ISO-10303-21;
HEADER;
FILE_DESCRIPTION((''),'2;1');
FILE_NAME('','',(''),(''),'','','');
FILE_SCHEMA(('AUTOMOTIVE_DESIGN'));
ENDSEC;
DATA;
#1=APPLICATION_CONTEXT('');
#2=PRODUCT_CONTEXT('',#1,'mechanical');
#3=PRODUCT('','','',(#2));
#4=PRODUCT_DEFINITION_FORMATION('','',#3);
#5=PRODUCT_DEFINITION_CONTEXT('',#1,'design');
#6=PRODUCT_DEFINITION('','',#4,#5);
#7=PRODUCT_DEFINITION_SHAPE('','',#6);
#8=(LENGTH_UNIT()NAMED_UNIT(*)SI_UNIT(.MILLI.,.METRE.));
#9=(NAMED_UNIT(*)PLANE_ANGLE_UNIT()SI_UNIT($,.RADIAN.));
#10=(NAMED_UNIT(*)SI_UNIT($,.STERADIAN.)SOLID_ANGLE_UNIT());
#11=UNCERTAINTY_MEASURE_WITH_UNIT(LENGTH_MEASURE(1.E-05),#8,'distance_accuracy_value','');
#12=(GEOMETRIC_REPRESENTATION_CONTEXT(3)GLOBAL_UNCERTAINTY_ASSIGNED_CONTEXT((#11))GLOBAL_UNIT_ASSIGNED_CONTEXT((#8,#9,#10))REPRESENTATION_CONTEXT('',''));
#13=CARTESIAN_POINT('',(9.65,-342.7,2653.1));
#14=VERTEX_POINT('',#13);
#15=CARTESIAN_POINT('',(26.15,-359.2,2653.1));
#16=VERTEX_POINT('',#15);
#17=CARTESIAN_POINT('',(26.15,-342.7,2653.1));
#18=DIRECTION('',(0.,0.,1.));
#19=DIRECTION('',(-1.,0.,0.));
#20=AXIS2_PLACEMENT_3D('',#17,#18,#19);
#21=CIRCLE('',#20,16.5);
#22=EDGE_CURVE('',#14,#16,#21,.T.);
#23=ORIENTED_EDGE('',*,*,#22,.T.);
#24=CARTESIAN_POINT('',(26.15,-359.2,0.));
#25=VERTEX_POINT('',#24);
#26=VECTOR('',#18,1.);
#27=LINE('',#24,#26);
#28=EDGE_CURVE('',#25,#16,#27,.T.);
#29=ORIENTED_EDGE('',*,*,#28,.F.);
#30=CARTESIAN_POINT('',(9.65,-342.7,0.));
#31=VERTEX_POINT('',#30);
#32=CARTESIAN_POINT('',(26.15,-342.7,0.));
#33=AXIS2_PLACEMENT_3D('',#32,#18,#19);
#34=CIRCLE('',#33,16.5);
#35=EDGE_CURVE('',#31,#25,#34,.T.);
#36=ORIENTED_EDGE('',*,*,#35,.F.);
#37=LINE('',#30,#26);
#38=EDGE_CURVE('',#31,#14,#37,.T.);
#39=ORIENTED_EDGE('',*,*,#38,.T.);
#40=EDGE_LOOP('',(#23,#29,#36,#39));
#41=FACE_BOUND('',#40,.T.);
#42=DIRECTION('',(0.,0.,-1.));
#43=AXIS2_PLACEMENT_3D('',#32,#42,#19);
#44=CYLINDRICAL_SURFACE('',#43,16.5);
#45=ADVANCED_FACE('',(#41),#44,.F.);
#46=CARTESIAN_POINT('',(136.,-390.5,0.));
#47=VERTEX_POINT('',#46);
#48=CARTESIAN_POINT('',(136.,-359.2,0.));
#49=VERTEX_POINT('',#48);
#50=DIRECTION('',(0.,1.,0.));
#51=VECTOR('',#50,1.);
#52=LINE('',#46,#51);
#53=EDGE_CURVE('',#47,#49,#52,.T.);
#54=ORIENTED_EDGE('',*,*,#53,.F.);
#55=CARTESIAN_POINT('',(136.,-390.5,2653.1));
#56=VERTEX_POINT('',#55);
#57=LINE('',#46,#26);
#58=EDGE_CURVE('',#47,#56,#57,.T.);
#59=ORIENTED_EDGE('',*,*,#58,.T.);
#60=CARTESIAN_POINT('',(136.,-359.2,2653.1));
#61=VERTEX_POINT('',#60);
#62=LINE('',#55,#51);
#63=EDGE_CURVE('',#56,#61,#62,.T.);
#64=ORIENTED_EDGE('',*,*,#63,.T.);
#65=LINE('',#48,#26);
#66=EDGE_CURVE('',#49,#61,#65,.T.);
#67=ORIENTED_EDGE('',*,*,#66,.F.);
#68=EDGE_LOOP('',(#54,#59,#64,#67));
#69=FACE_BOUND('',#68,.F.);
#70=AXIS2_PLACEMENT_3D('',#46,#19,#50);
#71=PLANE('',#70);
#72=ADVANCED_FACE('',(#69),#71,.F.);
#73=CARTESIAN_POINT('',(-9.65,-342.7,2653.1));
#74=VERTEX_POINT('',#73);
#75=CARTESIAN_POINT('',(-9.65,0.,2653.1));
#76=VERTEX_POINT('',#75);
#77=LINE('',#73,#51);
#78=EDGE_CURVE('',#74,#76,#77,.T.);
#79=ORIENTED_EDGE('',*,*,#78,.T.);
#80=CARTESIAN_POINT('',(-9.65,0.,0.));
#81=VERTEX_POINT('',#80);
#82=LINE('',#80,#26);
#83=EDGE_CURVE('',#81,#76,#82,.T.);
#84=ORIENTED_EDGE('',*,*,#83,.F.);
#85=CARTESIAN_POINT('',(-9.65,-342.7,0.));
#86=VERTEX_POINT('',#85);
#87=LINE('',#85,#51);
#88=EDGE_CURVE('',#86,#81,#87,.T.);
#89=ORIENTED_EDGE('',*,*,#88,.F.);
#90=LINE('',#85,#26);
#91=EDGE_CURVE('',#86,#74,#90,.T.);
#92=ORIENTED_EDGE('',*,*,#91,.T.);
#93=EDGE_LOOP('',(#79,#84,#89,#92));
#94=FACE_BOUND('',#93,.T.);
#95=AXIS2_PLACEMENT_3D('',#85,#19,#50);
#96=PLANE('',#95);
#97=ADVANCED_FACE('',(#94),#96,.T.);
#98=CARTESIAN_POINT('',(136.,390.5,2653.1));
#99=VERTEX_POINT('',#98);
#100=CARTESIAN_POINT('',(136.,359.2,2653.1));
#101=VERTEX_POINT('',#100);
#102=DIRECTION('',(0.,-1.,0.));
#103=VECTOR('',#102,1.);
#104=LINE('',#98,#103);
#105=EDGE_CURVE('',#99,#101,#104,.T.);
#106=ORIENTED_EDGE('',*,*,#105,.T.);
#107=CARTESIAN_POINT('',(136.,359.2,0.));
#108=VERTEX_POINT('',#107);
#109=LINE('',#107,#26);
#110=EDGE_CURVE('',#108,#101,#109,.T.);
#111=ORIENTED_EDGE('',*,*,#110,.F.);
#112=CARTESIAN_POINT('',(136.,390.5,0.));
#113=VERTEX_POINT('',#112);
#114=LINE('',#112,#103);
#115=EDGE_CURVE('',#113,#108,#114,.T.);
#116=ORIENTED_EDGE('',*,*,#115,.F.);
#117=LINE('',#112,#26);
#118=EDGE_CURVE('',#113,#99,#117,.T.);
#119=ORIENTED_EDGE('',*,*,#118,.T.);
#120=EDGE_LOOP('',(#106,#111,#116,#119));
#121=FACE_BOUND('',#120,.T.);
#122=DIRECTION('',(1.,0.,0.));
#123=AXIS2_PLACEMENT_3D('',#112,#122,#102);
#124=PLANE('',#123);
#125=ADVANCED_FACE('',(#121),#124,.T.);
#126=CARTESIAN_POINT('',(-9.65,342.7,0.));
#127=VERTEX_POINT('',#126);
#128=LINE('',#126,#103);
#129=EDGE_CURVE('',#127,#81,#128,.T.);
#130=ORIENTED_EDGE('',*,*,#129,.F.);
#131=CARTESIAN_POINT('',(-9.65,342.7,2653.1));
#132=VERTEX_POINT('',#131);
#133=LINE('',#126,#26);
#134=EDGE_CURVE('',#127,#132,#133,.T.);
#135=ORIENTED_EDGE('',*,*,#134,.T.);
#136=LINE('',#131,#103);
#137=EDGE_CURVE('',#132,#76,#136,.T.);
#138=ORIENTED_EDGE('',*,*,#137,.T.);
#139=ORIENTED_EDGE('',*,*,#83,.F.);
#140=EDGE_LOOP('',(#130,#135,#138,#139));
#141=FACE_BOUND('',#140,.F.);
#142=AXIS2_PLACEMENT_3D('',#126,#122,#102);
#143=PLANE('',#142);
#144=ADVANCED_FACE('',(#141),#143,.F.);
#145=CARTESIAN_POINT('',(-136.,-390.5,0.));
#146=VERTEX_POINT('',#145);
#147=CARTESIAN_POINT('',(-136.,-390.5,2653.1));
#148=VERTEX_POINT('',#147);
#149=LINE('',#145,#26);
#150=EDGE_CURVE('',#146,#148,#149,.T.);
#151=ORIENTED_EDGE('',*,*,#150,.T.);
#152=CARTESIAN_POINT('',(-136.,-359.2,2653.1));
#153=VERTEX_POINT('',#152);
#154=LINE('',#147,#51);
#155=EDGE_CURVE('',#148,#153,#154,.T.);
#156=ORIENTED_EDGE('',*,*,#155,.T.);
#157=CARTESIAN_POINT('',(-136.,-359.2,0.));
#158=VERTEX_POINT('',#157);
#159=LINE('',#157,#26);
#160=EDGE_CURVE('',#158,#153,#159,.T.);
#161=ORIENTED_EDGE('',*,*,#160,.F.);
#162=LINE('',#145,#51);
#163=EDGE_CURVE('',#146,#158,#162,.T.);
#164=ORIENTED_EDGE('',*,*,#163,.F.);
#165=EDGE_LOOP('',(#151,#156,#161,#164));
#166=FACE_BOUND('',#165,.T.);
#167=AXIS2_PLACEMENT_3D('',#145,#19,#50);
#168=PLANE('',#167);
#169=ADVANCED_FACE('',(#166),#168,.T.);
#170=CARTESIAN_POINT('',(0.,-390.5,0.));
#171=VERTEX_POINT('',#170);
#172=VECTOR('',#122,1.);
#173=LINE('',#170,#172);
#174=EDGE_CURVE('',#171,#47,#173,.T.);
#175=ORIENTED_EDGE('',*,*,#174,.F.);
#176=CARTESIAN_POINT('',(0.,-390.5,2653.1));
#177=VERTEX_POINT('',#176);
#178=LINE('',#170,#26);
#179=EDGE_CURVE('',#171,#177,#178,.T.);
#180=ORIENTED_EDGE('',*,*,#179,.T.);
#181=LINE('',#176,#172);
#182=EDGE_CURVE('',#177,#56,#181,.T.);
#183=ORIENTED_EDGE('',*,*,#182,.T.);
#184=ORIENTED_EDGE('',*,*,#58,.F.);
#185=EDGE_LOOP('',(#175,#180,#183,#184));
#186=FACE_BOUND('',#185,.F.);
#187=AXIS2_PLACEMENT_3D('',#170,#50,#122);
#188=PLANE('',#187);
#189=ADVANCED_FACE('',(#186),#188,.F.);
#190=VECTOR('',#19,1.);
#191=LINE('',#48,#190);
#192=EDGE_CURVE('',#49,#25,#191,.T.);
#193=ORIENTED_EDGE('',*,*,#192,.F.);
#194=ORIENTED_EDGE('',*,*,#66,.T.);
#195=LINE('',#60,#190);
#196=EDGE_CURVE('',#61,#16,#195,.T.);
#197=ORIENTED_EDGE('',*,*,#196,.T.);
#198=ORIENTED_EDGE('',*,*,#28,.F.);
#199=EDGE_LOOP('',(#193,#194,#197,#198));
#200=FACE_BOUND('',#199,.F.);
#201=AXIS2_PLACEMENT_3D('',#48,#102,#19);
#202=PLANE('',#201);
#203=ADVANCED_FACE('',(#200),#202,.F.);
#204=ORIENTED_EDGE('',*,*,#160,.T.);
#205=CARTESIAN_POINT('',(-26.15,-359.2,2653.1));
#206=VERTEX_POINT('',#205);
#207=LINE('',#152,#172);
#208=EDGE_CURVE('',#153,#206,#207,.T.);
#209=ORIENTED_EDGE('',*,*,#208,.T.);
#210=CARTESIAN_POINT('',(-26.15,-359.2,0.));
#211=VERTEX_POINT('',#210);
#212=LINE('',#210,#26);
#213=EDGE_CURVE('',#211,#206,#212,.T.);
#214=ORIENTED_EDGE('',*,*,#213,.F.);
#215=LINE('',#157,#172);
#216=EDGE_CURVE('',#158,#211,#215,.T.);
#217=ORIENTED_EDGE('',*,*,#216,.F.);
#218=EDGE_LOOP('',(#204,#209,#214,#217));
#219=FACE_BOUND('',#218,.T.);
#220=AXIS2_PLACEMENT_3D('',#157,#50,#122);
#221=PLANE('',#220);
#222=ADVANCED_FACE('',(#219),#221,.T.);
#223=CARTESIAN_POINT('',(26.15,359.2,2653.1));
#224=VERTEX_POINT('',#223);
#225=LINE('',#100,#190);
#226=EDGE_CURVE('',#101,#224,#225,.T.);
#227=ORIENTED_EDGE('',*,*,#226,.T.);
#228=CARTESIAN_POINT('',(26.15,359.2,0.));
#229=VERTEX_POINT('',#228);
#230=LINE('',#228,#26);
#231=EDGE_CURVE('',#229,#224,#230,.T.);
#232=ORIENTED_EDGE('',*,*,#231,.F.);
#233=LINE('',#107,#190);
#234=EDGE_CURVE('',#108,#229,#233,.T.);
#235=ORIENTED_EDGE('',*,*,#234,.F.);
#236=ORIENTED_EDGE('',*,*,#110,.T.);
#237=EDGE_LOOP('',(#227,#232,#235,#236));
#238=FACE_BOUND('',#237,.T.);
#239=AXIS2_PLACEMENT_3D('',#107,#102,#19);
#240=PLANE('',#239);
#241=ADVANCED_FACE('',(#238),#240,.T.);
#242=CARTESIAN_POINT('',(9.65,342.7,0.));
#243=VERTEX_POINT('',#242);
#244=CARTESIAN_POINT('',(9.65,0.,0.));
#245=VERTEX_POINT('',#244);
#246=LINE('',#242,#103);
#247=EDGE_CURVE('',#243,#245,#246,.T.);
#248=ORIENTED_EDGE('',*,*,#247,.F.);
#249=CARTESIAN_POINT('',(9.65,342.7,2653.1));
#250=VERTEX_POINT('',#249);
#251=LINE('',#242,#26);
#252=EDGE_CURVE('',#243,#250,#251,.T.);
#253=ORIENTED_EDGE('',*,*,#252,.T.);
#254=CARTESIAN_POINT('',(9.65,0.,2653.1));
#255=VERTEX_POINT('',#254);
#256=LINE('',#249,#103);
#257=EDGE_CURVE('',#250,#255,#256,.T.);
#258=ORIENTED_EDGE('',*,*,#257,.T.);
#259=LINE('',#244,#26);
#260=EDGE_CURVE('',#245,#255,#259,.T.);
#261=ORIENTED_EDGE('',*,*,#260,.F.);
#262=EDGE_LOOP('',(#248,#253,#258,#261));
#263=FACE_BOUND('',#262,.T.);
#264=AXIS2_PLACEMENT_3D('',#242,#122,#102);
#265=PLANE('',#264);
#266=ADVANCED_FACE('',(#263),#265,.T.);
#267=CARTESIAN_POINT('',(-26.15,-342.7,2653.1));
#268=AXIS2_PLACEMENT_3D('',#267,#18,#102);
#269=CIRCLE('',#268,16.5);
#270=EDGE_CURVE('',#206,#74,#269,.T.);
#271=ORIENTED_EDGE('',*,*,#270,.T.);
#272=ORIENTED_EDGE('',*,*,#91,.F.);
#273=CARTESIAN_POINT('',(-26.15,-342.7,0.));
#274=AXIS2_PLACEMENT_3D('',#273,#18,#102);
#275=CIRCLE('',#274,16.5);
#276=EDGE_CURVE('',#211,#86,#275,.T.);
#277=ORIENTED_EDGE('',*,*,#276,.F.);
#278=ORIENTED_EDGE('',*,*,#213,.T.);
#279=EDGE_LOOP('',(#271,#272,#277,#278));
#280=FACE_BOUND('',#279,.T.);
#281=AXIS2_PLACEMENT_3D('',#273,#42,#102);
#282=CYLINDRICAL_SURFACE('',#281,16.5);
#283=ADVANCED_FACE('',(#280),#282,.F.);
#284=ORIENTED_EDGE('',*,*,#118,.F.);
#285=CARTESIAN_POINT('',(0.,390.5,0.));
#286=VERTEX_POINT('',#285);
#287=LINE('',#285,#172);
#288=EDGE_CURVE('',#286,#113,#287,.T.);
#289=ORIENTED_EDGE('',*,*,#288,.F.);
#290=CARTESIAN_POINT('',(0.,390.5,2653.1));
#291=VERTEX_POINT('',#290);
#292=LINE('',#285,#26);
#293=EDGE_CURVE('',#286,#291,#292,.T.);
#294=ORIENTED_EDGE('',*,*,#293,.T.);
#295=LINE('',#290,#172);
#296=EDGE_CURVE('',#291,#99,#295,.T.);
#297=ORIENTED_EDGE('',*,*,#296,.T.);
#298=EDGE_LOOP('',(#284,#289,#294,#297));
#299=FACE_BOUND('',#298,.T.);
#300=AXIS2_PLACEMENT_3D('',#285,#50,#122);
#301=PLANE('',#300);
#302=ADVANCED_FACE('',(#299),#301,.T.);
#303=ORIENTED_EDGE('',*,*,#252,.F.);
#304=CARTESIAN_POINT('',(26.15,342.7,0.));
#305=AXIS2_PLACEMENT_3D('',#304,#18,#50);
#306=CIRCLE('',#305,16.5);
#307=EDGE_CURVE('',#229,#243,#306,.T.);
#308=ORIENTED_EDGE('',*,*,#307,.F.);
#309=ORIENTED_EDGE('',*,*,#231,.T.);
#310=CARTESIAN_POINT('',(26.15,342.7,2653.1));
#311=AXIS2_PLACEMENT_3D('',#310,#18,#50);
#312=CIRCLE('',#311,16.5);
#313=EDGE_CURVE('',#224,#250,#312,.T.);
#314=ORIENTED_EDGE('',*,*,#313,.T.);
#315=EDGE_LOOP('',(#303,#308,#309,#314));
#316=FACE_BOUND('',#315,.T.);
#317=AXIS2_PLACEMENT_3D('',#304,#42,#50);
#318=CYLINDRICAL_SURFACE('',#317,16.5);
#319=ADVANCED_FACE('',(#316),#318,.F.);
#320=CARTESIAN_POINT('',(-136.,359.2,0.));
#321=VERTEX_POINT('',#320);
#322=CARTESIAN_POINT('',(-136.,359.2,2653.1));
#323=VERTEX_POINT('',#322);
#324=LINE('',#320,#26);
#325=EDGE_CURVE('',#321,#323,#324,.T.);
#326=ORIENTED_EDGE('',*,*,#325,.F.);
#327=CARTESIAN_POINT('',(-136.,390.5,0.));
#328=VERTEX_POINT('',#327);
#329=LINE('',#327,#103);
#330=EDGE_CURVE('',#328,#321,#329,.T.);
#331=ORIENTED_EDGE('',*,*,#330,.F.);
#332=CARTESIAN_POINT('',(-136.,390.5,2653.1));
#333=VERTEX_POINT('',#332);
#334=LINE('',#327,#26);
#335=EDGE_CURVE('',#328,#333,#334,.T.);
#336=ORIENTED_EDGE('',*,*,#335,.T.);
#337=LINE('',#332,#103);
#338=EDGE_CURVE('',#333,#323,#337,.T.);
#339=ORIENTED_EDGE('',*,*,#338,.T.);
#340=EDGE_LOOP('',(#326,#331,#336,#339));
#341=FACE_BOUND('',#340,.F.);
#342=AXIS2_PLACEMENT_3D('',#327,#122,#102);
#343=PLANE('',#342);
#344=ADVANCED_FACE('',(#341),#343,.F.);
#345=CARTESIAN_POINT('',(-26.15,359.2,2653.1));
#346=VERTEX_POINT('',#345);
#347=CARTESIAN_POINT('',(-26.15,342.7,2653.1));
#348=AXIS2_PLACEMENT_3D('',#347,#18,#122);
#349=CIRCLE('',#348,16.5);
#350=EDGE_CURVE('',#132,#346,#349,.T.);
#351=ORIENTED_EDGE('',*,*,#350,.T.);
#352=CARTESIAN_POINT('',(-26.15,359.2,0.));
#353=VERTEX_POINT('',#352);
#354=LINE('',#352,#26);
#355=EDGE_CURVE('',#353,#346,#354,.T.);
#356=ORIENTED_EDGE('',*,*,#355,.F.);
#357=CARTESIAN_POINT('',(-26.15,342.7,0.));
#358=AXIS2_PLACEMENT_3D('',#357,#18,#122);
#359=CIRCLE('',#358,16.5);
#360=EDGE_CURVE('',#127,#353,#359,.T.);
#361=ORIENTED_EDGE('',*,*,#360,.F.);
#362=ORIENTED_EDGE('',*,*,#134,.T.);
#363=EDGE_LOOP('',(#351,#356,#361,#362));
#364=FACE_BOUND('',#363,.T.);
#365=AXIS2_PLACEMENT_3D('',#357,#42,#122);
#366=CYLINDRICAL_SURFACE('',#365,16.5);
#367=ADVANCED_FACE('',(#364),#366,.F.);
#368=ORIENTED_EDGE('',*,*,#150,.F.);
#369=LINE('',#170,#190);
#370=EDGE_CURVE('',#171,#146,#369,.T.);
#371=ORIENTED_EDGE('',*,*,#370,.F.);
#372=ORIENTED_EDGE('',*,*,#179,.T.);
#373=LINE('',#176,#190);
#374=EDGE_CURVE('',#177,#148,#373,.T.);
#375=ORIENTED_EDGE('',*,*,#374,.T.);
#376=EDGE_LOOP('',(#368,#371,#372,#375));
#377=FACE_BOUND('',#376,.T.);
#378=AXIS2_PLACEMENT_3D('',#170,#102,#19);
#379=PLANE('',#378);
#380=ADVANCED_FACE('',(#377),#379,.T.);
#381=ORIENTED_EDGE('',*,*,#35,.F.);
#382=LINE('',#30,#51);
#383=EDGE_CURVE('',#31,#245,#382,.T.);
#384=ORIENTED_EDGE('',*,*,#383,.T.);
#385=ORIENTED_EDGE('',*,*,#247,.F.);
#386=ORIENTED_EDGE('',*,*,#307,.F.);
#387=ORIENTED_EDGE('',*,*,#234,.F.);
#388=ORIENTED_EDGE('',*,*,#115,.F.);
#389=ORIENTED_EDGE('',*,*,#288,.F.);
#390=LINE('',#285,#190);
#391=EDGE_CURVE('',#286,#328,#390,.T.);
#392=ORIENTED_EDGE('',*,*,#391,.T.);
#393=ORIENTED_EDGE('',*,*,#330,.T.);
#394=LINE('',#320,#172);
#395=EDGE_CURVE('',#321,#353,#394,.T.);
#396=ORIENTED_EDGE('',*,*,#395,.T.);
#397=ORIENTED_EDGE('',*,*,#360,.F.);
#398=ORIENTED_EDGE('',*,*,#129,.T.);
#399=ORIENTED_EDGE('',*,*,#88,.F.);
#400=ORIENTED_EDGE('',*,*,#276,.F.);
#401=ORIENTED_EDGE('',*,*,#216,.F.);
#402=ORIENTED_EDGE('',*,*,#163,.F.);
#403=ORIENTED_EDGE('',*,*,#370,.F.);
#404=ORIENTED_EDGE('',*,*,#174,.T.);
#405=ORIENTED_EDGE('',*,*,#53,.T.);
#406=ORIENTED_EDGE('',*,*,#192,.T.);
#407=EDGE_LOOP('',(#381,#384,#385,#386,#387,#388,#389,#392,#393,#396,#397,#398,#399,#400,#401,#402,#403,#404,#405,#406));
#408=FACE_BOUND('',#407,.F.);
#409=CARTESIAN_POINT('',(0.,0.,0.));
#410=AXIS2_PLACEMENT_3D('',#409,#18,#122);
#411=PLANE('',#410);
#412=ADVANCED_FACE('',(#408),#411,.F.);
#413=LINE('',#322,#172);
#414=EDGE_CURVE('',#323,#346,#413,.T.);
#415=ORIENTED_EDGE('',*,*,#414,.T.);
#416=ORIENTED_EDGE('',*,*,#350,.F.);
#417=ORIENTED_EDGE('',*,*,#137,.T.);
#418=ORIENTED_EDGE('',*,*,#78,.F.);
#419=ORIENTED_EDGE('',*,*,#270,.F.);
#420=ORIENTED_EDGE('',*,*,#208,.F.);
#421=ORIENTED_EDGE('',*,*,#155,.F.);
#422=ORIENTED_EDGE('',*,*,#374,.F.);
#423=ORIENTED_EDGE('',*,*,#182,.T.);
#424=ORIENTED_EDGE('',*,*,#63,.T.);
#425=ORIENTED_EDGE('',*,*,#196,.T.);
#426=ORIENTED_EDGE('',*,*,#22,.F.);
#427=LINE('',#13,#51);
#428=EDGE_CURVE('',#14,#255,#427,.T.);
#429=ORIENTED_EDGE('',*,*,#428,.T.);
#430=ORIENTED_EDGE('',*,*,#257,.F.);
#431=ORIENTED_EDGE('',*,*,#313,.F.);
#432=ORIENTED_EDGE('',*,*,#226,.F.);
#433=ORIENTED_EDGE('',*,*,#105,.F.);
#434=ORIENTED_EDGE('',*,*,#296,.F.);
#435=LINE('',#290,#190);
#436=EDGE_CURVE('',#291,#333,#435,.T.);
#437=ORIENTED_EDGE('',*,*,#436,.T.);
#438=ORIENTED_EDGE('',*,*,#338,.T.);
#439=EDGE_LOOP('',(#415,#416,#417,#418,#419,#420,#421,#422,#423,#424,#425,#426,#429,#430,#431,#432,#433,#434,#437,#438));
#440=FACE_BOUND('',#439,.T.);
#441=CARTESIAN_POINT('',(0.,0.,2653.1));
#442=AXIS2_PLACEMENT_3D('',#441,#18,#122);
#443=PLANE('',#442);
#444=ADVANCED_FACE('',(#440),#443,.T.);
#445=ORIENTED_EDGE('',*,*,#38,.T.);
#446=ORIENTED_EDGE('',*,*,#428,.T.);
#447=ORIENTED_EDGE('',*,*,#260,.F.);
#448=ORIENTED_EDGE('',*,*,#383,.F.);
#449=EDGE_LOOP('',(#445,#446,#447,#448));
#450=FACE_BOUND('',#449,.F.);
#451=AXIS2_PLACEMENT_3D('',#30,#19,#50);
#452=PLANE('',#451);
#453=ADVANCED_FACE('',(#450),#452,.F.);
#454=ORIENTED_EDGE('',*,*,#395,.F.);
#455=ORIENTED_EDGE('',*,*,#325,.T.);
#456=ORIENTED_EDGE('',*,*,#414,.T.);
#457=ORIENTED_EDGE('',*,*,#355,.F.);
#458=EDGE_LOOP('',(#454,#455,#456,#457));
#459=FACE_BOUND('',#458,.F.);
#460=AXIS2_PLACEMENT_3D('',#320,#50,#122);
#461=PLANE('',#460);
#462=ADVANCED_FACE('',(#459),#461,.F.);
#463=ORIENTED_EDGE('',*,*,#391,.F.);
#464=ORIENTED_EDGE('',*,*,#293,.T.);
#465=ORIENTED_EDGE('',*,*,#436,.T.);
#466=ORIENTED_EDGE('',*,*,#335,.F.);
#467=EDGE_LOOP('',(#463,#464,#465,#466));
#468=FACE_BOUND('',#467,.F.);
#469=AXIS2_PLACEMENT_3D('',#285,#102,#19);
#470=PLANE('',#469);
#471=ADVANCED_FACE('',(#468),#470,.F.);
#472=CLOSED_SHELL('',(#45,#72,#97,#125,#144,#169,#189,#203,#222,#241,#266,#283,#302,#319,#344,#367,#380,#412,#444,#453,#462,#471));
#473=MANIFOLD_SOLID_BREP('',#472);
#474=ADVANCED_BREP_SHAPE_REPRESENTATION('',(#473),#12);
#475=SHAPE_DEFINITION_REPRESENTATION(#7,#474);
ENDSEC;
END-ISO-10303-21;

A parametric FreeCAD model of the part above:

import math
import FreeCAD as App
import Part
import Sketcher
from FreeCAD import Vector
Q = App.Units.Quantity

doc = App.newDocument("Part")
body = doc.addObject("PartDesign::Body", "Body")

# Sketch on XY plane
sketch1 = doc.addObject("Sketcher::SketchObject", "Sketch")
body.addObject(sketch1)
sketch1.AttachmentSupport = (doc.XY_Plane, [""])
sketch1.MapMode = "FlatFace"
sketch1.addGeometry(Part.LineSegment(Vector(-136, -359, 0), Vector(-136, -390, 0)), False)
sketch1.addGeometry(Part.LineSegment(Vector(-136, -390, 0), Vector(136, -390, 0)), False)
sketch1.addGeometry(Part.LineSegment(Vector(136, -390, 0), Vector(136, -359, 0)), False)
sketch1.addGeometry(Part.LineSegment(Vector(136, -359, 0), Vector(26, -359, 0)), False)
sketch1.addGeometry(Part.ArcOfCircle(Part.Circle(Vector(26, -343, 0), Vector(0, 0, 1), 16), math.radians(180), math.radians(270)), False)
sketch1.addGeometry(Part.LineSegment(Vector(10, -343, 0), Vector(10, 343, 0)), False)
sketch1.addGeometry(Part.ArcOfCircle(Part.Circle(Vector(26, 343, 0), Vector(0, 0, 1), 16), math.radians(90), math.radians(180)), False)
sketch1.addGeometry(Part.LineSegment(Vector(26, 359, 0), Vector(136, 359, 0)), False)
sketch1.addGeometry(Part.LineSegment(Vector(136, 359, 0), Vector(136, 390, 0)), False)
sketch1.addGeometry(Part.LineSegment(Vector(136, 390, 0), Vector(-136, 390, 0)), False)
sketch1.addGeometry(Part.LineSegment(Vector(-136, 390, 0), Vector(-136, 359, 0)), False)
sketch1.addGeometry(Part.LineSegment(Vector(-136, 359, 0), Vector(-26, 359, 0)), False)
sketch1.addGeometry(Part.ArcOfCircle(Part.Circle(Vector(-26, 343, 0), Vector(0, 0, 1), 16), math.radians(0), math.radians(90)), False)
sketch1.addGeometry(Part.LineSegment(Vector(-10, 343, 0), Vector(-10, -343, 0)), False)
sketch1.addGeometry(Part.ArcOfCircle(Part.Circle(Vector(-26, -343, 0), Vector(0, 0, 1), 16), math.radians(-90), math.radians(0)), False)
sketch1.addGeometry(Part.LineSegment(Vector(-26, -359, 0), Vector(-136, -359, 0)), False)
sketch1.addConstraint(Sketcher.Constraint("Coincident", 0, 2, 1, 1))
sketch1.addConstraint(Sketcher.Constraint("Coincident", 1, 2, 2, 1))
sketch1.addConstraint(Sketcher.Constraint("Coincident", 2, 2, 3, 1))
sketch1.addConstraint(Sketcher.Constraint("Tangent", 3, 2, 4, 2))
sketch1.addConstraint(Sketcher.Constraint("Tangent", 4, 1, 5, 1))
sketch1.addConstraint(Sketcher.Constraint("Tangent", 5, 2, 6, 2))
sketch1.addConstraint(Sketcher.Constraint("Tangent", 6, 1, 7, 1))
sketch1.addConstraint(Sketcher.Constraint("Coincident", 7, 2, 8, 1))
sketch1.addConstraint(Sketcher.Constraint("Coincident", 8, 2, 9, 1))
sketch1.addConstraint(Sketcher.Constraint("Coincident", 9, 2, 10, 1))
sketch1.addConstraint(Sketcher.Constraint("Coincident", 10, 2, 11, 1))
sketch1.addConstraint(Sketcher.Constraint("Tangent", 11, 2, 12, 2))
sketch1.addConstraint(Sketcher.Constraint("Tangent", 12, 1, 13, 1))
sketch1.addConstraint(Sketcher.Constraint("Tangent", 13, 2, 14, 2))
sketch1.addConstraint(Sketcher.Constraint("Tangent", 14, 1, 15, 1))
sketch1.addConstraint(Sketcher.Constraint("Coincident", 15, 2, 0, 1))
sketch1.addConstraint(Sketcher.Constraint("Vertical", 0))
sketch1.addConstraint(Sketcher.Constraint("Horizontal", 1))
sketch1.addConstraint(Sketcher.Constraint("Vertical", 2))
sketch1.addConstraint(Sketcher.Constraint("Horizontal", 3))
sketch1.addConstraint(Sketcher.Constraint("Vertical", 5))
sketch1.addConstraint(Sketcher.Constraint("Horizontal", 7))
sketch1.addConstraint(Sketcher.Constraint("Vertical", 8))
sketch1.addConstraint(Sketcher.Constraint("Horizontal", 9))
sketch1.addConstraint(Sketcher.Constraint("Vertical", 10))
sketch1.addConstraint(Sketcher.Constraint("Horizontal", 11))
sketch1.addConstraint(Sketcher.Constraint("Vertical", 13))
sketch1.addConstraint(Sketcher.Constraint("Horizontal", 15))
sketch1.addConstraint(Sketcher.Constraint("Equal", 4, 6))
sketch1.addConstraint(Sketcher.Constraint("Equal", 6, 12))
sketch1.addConstraint(Sketcher.Constraint("Equal", 12, 14))
sketch1.addConstraint(Sketcher.Constraint("Symmetric", 4, 3, 12, 3, -1, 1))
sketch1.addConstraint(Sketcher.Constraint("Symmetric", 0, 2, 8, 2, -1, 1))
sketch1.addConstraint(Sketcher.Constraint("Symmetric", 7, 2, 10, 2, -2))
sketch1.addConstraint(Sketcher.Constraint("Symmetric", 2, 2, 15, 2, -2))
sketch1.addConstraint(Sketcher.Constraint("Radius", 4, Q("16.5 mm")))
sketch1.addConstraint(Sketcher.Constraint("DistanceY", 0, 2, 0, 1, Q("31.3 mm")))
sketch1.addConstraint(Sketcher.Constraint("DistanceX", 0, 2, -1, 1, Q("136 mm")))
sketch1.addConstraint(Sketcher.Constraint("DistanceY", 0, 2, -1, 1, Q("390.5 mm")))
sketch1.addConstraint(Sketcher.Constraint("DistanceX", -1, 1, 4, 1, Q("9.65 mm")))
pad1 = doc.addObject("PartDesign::Pad", "Pad")
body.addObject(pad1)
pad1.Profile = sketch1
pad1.Length = 2653.1

doc.recompute()
